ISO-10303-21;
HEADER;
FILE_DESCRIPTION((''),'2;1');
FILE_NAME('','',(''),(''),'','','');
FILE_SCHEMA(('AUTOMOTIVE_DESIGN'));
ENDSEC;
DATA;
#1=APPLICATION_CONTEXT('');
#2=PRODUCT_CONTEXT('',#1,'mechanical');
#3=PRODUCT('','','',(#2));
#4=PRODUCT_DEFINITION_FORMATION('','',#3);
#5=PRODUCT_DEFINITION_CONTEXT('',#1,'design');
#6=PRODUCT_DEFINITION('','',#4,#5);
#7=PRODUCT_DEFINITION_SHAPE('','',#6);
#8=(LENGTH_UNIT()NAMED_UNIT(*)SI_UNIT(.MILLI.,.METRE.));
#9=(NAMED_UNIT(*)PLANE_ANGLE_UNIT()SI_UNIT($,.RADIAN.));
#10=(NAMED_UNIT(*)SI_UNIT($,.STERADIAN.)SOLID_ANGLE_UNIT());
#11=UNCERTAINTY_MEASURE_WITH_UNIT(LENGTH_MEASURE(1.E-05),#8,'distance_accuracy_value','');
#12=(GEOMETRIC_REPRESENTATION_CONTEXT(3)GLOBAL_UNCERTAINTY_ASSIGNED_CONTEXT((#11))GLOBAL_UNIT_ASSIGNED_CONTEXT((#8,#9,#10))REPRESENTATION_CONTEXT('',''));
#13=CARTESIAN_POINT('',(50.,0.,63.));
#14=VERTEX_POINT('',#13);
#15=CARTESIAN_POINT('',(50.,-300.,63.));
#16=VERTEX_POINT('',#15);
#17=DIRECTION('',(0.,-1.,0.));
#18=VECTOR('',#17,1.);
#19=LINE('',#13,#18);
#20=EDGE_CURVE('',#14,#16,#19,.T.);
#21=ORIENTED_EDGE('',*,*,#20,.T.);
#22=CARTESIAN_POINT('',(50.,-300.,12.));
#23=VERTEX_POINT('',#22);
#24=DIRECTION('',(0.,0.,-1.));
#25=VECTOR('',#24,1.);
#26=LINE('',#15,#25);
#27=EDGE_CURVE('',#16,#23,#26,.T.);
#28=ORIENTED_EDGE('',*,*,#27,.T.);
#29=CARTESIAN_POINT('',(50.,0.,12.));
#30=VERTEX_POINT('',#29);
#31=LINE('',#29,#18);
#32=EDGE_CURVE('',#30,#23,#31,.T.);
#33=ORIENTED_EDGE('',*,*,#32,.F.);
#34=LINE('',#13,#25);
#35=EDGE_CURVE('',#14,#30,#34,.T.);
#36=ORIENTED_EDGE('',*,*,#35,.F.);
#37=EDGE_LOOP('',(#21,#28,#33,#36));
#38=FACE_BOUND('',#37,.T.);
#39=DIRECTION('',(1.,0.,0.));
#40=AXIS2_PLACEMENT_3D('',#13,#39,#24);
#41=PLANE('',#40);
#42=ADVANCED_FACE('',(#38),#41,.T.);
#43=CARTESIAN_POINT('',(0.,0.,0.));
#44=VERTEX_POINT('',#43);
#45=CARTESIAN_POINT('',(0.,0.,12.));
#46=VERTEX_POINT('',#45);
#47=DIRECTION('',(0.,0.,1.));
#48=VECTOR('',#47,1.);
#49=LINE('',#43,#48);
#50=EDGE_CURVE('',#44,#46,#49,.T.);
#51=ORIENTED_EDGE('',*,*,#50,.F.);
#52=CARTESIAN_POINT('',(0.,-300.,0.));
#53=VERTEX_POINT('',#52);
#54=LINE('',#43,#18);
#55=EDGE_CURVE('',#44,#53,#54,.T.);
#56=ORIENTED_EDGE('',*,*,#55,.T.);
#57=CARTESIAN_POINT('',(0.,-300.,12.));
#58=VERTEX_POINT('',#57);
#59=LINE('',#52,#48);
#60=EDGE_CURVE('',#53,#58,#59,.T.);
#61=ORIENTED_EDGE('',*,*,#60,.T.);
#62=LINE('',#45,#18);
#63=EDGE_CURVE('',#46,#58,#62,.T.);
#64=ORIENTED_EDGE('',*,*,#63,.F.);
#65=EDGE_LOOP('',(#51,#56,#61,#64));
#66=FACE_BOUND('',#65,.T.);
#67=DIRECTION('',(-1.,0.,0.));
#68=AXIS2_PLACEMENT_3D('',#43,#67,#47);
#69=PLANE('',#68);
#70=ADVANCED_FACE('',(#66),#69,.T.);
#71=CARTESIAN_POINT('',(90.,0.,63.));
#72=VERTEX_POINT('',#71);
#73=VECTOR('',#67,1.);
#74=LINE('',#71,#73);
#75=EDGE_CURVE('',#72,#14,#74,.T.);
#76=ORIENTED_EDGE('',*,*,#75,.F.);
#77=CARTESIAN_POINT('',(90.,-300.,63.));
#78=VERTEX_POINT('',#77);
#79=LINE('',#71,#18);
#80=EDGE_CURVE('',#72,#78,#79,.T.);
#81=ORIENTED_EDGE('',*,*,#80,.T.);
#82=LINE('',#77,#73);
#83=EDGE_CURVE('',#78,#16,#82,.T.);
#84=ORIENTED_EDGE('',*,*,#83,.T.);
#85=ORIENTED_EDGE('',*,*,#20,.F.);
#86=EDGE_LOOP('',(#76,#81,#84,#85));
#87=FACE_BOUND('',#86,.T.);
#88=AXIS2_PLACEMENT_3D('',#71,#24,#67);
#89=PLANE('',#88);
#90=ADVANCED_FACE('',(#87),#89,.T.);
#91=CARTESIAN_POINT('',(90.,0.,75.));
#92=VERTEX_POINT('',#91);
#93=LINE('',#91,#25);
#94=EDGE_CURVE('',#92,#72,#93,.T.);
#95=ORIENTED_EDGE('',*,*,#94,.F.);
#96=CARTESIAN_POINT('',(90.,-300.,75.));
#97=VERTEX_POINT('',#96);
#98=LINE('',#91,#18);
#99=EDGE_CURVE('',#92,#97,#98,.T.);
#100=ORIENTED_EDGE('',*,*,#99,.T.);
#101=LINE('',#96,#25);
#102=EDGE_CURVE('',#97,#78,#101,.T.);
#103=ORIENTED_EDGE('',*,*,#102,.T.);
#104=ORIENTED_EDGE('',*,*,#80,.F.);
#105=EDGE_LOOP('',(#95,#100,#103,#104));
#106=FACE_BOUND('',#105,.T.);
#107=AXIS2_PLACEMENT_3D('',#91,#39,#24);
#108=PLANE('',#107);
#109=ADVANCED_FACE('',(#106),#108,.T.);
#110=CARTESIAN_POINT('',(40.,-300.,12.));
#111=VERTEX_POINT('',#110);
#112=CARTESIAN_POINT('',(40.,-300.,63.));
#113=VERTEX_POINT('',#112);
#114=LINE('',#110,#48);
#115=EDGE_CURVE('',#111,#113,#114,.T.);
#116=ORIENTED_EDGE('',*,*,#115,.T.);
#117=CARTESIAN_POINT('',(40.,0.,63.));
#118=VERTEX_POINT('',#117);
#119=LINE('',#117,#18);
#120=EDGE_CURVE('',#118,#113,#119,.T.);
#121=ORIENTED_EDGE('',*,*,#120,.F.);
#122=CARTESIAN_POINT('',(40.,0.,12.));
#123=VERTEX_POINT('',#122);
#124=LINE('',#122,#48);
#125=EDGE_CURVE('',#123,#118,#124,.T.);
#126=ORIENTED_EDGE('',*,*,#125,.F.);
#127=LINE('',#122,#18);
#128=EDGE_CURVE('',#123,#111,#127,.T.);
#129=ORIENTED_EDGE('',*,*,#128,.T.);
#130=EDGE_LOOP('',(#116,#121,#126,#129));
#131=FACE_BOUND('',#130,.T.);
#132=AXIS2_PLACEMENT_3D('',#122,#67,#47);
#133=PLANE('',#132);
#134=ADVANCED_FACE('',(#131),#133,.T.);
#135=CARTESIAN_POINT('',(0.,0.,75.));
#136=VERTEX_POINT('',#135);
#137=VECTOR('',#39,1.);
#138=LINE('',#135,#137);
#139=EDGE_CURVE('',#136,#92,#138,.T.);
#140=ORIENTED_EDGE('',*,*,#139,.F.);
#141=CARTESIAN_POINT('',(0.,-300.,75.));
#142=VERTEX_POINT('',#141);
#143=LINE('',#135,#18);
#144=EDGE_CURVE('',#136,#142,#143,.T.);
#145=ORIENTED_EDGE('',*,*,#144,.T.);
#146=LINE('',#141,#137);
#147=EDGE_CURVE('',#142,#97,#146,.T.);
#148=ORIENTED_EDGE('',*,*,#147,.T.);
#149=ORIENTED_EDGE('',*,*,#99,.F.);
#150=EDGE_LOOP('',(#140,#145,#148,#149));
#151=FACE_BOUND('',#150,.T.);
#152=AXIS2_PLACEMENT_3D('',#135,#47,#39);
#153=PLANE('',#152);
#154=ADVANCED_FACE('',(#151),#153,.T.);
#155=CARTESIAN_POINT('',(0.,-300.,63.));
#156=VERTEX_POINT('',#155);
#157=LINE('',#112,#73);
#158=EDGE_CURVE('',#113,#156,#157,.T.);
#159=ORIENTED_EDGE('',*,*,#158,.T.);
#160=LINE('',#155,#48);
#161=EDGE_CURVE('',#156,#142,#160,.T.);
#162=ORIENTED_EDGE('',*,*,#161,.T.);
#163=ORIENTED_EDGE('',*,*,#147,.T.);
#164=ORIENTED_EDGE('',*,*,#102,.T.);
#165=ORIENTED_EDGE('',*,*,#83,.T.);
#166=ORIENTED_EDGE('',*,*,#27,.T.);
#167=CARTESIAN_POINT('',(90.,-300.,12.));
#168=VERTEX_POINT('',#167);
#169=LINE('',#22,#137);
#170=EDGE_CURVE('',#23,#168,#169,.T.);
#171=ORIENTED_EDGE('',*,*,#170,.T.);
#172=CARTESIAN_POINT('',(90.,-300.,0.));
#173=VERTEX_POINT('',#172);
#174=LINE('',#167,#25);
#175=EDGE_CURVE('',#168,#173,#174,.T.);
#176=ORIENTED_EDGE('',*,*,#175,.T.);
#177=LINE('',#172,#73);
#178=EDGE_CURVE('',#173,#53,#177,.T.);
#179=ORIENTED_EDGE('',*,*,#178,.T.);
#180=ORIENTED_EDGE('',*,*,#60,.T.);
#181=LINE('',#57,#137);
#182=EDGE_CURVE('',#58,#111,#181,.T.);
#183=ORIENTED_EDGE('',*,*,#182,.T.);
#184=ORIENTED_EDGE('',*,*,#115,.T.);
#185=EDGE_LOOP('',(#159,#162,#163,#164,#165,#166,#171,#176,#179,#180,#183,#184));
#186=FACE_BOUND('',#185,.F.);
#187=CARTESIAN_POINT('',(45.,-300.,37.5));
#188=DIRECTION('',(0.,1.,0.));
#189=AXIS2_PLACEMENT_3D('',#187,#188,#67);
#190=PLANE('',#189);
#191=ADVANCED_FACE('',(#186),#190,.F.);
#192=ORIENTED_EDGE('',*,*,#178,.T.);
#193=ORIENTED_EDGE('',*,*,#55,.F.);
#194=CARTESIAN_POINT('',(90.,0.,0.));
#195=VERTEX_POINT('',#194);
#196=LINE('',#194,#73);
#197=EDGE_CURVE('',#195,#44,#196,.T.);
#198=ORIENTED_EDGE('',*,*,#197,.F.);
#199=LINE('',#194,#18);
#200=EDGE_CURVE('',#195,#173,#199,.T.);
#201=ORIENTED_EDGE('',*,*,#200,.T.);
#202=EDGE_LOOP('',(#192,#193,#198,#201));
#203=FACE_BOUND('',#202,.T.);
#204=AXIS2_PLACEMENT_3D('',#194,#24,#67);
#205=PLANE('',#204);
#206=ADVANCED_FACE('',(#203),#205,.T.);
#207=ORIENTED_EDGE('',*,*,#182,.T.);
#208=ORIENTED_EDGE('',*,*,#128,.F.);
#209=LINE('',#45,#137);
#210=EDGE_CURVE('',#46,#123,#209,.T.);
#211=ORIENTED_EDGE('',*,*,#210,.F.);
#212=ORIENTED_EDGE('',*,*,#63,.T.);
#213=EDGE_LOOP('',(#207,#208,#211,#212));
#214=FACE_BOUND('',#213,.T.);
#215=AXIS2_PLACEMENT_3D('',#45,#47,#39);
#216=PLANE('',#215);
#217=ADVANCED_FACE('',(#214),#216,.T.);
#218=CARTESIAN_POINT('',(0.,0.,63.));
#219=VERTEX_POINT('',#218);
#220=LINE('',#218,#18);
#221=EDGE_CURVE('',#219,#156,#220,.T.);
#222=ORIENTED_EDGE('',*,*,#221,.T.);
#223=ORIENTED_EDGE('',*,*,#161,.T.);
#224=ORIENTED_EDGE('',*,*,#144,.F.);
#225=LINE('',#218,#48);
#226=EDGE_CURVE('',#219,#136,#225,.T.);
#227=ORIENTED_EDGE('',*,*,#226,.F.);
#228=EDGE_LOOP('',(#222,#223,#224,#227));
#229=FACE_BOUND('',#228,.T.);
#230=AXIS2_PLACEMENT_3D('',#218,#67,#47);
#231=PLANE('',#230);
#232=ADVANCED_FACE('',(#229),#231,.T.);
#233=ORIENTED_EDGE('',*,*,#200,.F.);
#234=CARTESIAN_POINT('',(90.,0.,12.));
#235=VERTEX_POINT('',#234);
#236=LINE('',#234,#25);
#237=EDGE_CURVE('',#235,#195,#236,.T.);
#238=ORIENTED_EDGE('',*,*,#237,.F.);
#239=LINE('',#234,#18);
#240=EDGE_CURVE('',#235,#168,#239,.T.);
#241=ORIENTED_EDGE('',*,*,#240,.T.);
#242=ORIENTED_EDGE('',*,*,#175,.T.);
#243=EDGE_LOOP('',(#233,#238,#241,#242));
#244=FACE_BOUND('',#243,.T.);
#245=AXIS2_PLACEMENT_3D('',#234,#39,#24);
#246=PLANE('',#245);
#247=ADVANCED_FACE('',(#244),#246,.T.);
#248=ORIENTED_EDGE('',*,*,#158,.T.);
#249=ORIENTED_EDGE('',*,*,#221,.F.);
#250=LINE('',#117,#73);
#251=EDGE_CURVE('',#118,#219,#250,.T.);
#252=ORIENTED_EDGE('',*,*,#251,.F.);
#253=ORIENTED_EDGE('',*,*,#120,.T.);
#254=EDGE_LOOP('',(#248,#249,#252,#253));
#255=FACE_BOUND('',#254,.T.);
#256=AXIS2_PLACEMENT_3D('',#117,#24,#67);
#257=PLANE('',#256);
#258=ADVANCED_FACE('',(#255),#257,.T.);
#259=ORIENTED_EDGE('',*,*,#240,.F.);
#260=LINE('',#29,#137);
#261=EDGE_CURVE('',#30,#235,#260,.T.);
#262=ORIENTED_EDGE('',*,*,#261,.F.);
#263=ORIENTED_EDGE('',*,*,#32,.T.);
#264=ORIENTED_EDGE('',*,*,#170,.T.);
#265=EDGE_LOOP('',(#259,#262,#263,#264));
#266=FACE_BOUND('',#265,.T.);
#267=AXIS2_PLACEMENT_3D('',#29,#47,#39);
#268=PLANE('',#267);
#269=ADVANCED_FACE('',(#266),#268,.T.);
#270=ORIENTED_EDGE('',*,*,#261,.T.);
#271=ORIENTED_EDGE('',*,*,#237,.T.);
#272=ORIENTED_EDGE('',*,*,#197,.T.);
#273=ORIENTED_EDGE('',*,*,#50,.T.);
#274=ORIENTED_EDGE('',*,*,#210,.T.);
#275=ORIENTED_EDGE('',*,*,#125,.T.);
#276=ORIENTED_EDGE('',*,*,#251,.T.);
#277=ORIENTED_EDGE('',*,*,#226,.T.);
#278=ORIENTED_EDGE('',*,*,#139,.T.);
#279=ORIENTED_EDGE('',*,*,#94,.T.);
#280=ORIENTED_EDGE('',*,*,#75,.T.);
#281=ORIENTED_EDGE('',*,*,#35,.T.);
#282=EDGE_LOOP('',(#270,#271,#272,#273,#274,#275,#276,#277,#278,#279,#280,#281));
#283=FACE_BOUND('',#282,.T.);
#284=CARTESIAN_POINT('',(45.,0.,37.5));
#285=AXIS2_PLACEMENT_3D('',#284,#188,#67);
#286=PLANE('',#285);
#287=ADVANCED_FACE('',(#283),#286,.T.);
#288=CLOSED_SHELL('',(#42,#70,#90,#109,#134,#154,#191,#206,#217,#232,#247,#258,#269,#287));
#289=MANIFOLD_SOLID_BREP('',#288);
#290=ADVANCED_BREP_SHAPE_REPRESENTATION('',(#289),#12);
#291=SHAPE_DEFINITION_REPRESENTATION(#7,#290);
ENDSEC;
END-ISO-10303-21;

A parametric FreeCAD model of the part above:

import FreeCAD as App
import Part
import Sketcher
from FreeCAD import Vector
Q = App.Units.Quantity


def add_polygon(sketch, points):
    """Adds a closed chain of lines whose ends are joined by coincident constraints."""
    first, n = sketch.GeometryCount, len(points)
    for a, b in zip(points, points[1:] + points[:1]):
        sketch.addGeometry(Part.LineSegment(App.Vector(*a, 0), App.Vector(*b, 0)), False)
    for i in range(n):
        sketch.addConstraint(Sketcher.Constraint("Coincident", first + i, 2, first + (i + 1) % n, 1))

doc = App.newDocument("Part")
body = doc.addObject("PartDesign::Body", "Body")

# Sketch on XZ plane
sketch1 = body.newObject("Sketcher::SketchObject", "Sketch")
sketch1.AttachmentSupport = (doc.getObject("XZ_Plane"), [""])
sketch1.MapMode = "FlatFace"
add_polygon(sketch1, [(90, 75), (0, 75), (0, 63), (40, 63), (40, 12), (0, 12), (0, 0), (90, 0), (90, 12), (50, 12), (50, 63), (90, 63)])  # lines 0-11
sketch1.addConstraint([
    Sketcher.Constraint("Horizontal", 0),
    Sketcher.Constraint("Vertical", 1),
    Sketcher.Constraint("Horizontal", 2),
    Sketcher.Constraint("Vertical", 3),
    Sketcher.Constraint("Horizontal", 4),
    Sketcher.Constraint("Vertical", 5),
    Sketcher.Constraint("Horizontal", 6),
    Sketcher.Constraint("Vertical", 7),
    Sketcher.Constraint("Horizontal", 8),
    Sketcher.Constraint("Vertical", 9),
    Sketcher.Constraint("Horizontal", 10),
    Sketcher.Constraint("Vertical", 11),
    Sketcher.Constraint("Coincident", 5, 2, -1, 1),
    Sketcher.Constraint("PointOnObject", 0, 2, -2),
    Sketcher.Constraint("Horizontal", 4, 2, 7, 2),
    Sketcher.Constraint("Horizontal", 2, 2, 9, 2),
    Sketcher.Constraint("Vertical", 7, 2, 10, 2),
    Sketcher.Constraint("Equal", 4, 8),
    Sketcher.Constraint("Equal", 1, 5),
    Sketcher.Constraint("DistanceX", 0, 2, 0, 1, Q("90 mm")),
    Sketcher.Constraint("DistanceX", 2, 1, 2, 2, Q("40 mm")),
    Sketcher.Constraint("DistanceY", 1, 2, 1, 1, Q("12 mm")),
    Sketcher.Constraint("DistanceY", 3, 2, 3, 1, Q("51 mm")),
])
pad1 = body.newObject("PartDesign::Pad", "Pad")
pad1.Profile = sketch1
pad1.Length = 300

doc.recompute()
